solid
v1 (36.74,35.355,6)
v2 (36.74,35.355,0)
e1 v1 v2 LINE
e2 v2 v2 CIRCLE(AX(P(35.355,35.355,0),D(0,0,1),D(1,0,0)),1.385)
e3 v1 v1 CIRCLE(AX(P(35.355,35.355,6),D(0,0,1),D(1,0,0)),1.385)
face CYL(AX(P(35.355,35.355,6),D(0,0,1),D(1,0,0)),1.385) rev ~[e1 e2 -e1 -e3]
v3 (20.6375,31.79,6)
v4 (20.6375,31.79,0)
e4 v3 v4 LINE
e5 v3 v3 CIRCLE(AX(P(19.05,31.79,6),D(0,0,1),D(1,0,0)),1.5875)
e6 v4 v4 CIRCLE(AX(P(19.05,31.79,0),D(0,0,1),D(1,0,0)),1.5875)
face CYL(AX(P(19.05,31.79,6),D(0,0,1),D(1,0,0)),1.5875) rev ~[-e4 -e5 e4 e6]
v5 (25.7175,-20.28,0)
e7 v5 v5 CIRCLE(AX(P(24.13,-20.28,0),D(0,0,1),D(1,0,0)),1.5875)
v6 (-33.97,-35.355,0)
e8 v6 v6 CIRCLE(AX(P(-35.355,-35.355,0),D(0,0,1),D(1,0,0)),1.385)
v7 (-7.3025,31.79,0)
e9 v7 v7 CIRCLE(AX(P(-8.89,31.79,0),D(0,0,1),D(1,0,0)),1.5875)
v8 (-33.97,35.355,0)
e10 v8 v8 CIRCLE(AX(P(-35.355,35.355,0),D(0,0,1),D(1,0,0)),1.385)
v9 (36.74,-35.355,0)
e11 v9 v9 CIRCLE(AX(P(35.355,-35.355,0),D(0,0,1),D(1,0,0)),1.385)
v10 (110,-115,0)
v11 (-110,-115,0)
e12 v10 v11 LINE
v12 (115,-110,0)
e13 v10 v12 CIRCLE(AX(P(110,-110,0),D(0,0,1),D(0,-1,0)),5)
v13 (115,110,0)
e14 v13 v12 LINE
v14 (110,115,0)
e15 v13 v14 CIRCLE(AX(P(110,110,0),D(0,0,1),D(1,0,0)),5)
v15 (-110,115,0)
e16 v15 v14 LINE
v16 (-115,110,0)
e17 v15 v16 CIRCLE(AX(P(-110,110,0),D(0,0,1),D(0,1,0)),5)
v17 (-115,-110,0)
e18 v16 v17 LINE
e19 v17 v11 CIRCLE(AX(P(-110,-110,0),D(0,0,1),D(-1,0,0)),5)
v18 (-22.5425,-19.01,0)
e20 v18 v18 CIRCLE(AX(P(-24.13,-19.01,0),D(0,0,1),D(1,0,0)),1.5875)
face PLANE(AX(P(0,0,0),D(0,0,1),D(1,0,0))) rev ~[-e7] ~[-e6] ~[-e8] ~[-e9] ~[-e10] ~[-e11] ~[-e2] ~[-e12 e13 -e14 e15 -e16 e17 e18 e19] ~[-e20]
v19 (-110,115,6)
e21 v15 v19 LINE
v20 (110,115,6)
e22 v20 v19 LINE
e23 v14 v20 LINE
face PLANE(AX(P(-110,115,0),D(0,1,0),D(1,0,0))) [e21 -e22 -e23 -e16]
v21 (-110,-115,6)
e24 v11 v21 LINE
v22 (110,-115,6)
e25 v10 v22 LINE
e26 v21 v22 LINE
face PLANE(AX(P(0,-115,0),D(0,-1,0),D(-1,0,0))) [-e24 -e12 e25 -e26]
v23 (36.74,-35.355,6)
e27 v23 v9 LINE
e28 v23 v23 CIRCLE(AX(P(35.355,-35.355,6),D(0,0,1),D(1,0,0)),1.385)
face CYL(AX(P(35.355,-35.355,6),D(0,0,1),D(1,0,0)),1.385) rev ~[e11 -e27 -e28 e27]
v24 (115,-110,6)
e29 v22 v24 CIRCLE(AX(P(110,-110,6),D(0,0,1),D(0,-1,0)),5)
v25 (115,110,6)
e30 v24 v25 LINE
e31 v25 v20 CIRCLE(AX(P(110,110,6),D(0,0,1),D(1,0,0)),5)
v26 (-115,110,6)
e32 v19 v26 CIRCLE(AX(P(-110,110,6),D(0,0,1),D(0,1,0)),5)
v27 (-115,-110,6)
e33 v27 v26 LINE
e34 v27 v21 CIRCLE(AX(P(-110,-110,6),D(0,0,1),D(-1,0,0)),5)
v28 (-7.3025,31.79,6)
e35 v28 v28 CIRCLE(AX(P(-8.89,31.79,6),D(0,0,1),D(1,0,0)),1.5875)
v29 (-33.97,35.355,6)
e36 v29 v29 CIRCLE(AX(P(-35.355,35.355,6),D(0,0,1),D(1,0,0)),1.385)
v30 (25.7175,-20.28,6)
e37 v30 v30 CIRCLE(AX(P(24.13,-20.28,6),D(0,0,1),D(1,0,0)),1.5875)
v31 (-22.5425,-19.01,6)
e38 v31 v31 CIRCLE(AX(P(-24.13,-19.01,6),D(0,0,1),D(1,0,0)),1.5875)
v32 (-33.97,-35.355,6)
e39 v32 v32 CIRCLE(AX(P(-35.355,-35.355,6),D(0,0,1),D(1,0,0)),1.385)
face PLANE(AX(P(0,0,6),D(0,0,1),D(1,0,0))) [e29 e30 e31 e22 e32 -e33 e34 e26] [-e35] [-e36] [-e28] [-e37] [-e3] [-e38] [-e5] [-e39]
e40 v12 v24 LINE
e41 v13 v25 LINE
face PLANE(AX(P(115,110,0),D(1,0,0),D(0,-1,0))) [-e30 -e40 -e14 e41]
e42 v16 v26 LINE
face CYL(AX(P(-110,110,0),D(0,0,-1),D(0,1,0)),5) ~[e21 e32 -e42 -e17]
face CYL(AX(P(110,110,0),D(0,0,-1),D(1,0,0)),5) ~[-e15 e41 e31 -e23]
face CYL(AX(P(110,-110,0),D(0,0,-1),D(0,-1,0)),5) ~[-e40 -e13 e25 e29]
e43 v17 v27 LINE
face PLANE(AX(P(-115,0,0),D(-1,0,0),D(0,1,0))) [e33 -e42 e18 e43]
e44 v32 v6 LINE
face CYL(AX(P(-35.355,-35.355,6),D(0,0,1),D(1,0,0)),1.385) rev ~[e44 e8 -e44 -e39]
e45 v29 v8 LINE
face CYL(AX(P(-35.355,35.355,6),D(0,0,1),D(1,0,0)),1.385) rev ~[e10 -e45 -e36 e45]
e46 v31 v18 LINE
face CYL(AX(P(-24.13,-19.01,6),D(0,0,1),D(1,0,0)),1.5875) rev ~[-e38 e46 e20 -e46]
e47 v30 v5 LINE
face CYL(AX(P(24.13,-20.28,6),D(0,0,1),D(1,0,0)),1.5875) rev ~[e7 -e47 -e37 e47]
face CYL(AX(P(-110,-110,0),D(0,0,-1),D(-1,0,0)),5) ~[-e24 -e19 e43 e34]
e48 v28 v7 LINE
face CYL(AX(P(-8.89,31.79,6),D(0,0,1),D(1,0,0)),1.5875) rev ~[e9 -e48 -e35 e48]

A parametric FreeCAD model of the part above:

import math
import FreeCAD as App
import Part
import Sketcher
from FreeCAD import Vector
Q = App.Units.Quantity

doc = App.newDocument("Part")
params = doc.addObject("Spreadsheet::Sheet", "Params")
for row, (alias, value) in enumerate([
    ("sketch1_radius", "5 mm"),
    ("pad1_length", "6 mm"),
    ("sketch2_diameter", "2.77 mm"),
], start=1):
    params.set(f"A{row}", alias)
    params.set(f"B{row}", "=" + value)
    params.setAlias(f"B{row}", alias)

body = doc.addObject("PartDesign::Body", "Body")

# Sketch on XY plane
sketch1 = body.newObject("Sketcher::SketchObject", "Sketch")
sketch1.AttachmentSupport = (doc.getObject("XY_Plane"), [""])
sketch1.MapMode = "FlatFace"
sketch1.addGeometry(Part.LineSegment(Vector(-115, 110, 0), Vector(-115, -110, 0)), False)
sketch1.addGeometry(Part.ArcOfCircle(Part.Circle(Vector(-110, -110, 0), Vector(0, 0, 1), 5), math.radians(180), math.radians(270)), False)
sketch1.addGeometry(Part.LineSegment(Vector(-110, -115, 0), Vector(110, -115, 0)), False)
sketch1.addGeometry(Part.ArcOfCircle(Part.Circle(Vector(110, -110, 0), Vector(0, 0, 1), 5), math.radians(-90), math.radians(0)), False)
sketch1.addGeometry(Part.LineSegment(Vector(115, -110, 0), Vector(115, 110, 0)), False)
sketch1.addGeometry(Part.ArcOfCircle(Part.Circle(Vector(110, 110, 0), Vector(0, 0, 1), 5), math.radians(0), math.radians(90)), False)
sketch1.addGeometry(Part.LineSegment(Vector(110, 115, 0), Vector(-110, 115, 0)), False)
sketch1.addGeometry(Part.ArcOfCircle(Part.Circle(Vector(-110, 110, 0), Vector(0, 0, 1), 5), math.radians(90), math.radians(180)), False)
sketch1.addConstraint(Sketcher.Constraint("Tangent", 0, 2, 1, 1))
sketch1.addConstraint(Sketcher.Constraint("Tangent", 1, 2, 2, 1))
sketch1.addConstraint(Sketcher.Constraint("Tangent", 2, 2, 3, 1))
sketch1.addConstraint(Sketcher.Constraint("Tangent", 3, 2, 4, 1))
sketch1.addConstraint(Sketcher.Constraint("Tangent", 4, 2, 5, 1))
sketch1.addConstraint(Sketcher.Constraint("Tangent", 5, 2, 6, 1))
sketch1.addConstraint(Sketcher.Constraint("Tangent", 6, 2, 7, 1))
sketch1.addConstraint(Sketcher.Constraint("Tangent", 7, 2, 0, 1))
sketch1.addConstraint(Sketcher.Constraint("Vertical", 0))
sketch1.addConstraint(Sketcher.Constraint("Horizontal", 2))
sketch1.addConstraint(Sketcher.Constraint("Vertical", 4))
sketch1.addConstraint(Sketcher.Constraint("Horizontal", 6))
sketch1.addConstraint(Sketcher.Constraint("Equal", 1, 3))
sketch1.addConstraint(Sketcher.Constraint("Equal", 3, 5))
sketch1.addConstraint(Sketcher.Constraint("Equal", 5, 7))
sketch1.addConstraint(Sketcher.Constraint("Symmetric", 1, 3, 5, 3, -1, 1))
sketch1.addConstraint(Sketcher.Constraint("Equal", 6, 0))
sketch1.addConstraint(Sketcher.Constraint("Radius", 1, Q("5 mm")))
sketch1.addConstraint(Sketcher.Constraint("DistanceX", 0, 2, -1, 1, Q("115 mm")))
sketch1.setExpression("Constraints[17]", "Params.sketch1_radius")
pad1 = body.newObject("PartDesign::Pad", "Pad")
pad1.Profile = sketch1
pad1.setExpression("Length", "Params.pad1_length")

# Sketch on XY plane
sketch2 = body.newObject("Sketcher::SketchObject", "Sketch001")
sketch2.AttachmentSupport = (doc.getObject("XY_Plane"), [""])
sketch2.MapMode = "FlatFace"
sketch2.AttachmentOffset = App.Placement(Vector(0, 0, 6), App.Rotation())
sketch2.addGeometry(Part.Circle(Vector(-35.4, 35.4, 0), Vector(0, 0, 1), 1.4), False)
sketch2.addGeometry(Part.Circle(Vector(-35.4, -35.4, 0), Vector(0, 0, 1), 1.4), False)
sketch2.addGeometry(Part.Circle(Vector(35.4, -35.4, 0), Vector(0, 0, 1), 1.4), False)
sketch2.addGeometry(Part.Circle(Vector(35.4, 35.4, 0), Vector(0, 0, 1), 1.4), False)
sketch2.addGeometry(Part.Circle(Vector(-24.1, -19, 0), Vector(0, 0, 1), 1.6), False)
sketch2.addGeometry(Part.Circle(Vector(24.1, -20.3, 0), Vector(0, 0, 1), 1.6), False)
sketch2.addGeometry(Part.Circle(Vector(19.1, 31.8, 0), Vector(0, 0, 1), 1.6), False)
sketch2.addGeometry(Part.Circle(Vector(-8.9, 31.8, 0), Vector(0, 0, 1), 1.6), False)
sketch2.addConstraint(Sketcher.Constraint("Equal", 0, 1))
sketch2.addConstraint(Sketcher.Constraint("Equal", 1, 2))
sketch2.addConstraint(Sketcher.Constraint("Equal", 2, 3))
sketch2.addConstraint(Sketcher.Constraint("Equal", 4, 5))
sketch2.addConstraint(Sketcher.Constraint("Equal", 5, 6))
sketch2.addConstraint(Sketcher.Constraint("Equal", 6, 7))
sketch2.addConstraint(Sketcher.Constraint("Symmetric", 0, 3, 2, 3, -1, 1))
sketch2.addConstraint(Sketcher.Constraint("Symmetric", 1, 3, 3, 3, -1, 1))
sketch2.addConstraint(Sketcher.Constraint("Symmetric", 1, 3, 2, 3, -2))
sketch2.addConstraint(Sketcher.Constraint("Horizontal", 6, 3, 7, 3))
sketch2.addConstraint(Sketcher.Constraint("Diameter", 0, Q("2.77 mm")))
sketch2.addConstraint(Sketcher.Constraint("Diameter", 4, Q("3.175 mm")))
sketch2.addConstraint(Sketcher.Constraint("DistanceY", 4, 3, 6, 3, Q("50.8 mm")))
sketch2.addConstraint(Sketcher.Constraint("DistanceX", 4, 3, -1, 1, Q("24.13 mm")))
sketch2.addConstraint(Sketcher.Constraint("DistanceY", 4, 3, -1, 1, Q("19.01 mm")))
sketch2.addConstraint(Sketcher.Constraint("DistanceX", -1, 1, 5, 3, Q("24.13 mm")))
sketch2.addConstraint(Sketcher.Constraint("DistanceY", 5, 3, -1, 1, Q("20.28 mm")))
sketch2.addConstraint(Sketcher.Constraint("DistanceX", -1, 1, 6, 3, Q("19.05 mm")))
sketch2.addConstraint(Sketcher.Constraint("DistanceX", 7, 3, -1, 1, Q("8.89 mm")))
sketch2.addConstraint(Sketcher.Constraint("DistanceY", 1, 3, 0, 3, Q("70.71 mm")))
sketch2.addConstraint(Sketcher.Constraint("DistanceX", 1, 3, 2, 3, Q("70.71 mm")))
sketch2.setExpression("Constraints[10]", "Params.sketch2_diameter")
pocket1 = body.newObject("PartDesign::Pocket", "Pocket")
pocket1.Profile = sketch2
pocket1.Type = "ThroughAll"

doc.recompute()
